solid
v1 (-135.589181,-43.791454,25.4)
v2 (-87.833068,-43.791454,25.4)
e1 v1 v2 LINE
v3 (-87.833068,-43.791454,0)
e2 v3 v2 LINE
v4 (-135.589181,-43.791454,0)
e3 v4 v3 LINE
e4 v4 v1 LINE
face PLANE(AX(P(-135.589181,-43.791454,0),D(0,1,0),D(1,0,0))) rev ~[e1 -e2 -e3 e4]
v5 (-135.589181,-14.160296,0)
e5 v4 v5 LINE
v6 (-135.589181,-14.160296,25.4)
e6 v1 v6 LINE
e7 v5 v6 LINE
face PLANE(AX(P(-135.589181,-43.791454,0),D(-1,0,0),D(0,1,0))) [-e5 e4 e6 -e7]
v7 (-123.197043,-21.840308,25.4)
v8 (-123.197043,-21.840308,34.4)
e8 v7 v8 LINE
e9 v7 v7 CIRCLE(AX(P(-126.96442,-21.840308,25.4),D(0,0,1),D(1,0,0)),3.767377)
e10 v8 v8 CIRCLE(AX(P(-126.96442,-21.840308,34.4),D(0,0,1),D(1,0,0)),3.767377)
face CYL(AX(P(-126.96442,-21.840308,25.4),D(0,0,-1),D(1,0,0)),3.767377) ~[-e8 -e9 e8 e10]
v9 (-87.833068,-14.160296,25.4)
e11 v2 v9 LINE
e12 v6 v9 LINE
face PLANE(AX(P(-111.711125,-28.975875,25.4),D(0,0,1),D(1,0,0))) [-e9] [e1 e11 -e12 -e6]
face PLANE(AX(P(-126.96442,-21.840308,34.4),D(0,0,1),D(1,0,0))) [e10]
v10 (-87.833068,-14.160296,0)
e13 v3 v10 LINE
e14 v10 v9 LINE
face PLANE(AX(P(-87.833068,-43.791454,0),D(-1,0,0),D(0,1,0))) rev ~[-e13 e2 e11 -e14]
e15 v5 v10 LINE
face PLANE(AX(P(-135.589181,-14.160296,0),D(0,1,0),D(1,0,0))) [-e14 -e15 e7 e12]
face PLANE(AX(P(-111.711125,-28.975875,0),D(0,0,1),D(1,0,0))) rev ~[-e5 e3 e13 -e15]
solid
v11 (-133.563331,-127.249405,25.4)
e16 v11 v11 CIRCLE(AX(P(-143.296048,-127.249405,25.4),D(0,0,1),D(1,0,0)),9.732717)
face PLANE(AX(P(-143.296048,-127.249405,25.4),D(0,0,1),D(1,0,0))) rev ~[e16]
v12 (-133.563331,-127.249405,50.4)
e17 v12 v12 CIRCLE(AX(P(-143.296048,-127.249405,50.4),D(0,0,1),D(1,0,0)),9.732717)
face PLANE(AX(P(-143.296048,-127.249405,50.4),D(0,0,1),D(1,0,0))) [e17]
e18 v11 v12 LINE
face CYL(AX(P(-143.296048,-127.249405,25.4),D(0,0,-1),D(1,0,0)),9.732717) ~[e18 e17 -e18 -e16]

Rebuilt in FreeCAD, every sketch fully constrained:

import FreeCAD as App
import Part
import Sketcher


def add_polygon(sketch, points):
    """Adds a closed chain of lines whose ends are joined by coincident constraints."""
    first, n = sketch.GeometryCount, len(points)
    for a, b in zip(points, points[1:] + points[:1]):
        sketch.addGeometry(Part.LineSegment(App.Vector(*a, 0), App.Vector(*b, 0)), False)
    for i in range(n):
        sketch.addConstraint(Sketcher.Constraint("Coincident", first + i, 2, first + (i + 1) % n, 1))

doc = App.newDocument("Part")
params = doc.addObject("Spreadsheet::Sheet", "Params")
for row, (alias, value) in enumerate([
    ("pad1_length", "25.4 mm"),
    ("pad2_length", "9 mm"),
    ("pad3_length", "25 mm"),
], start=1):
    params.set(f"A{row}", alias)
    params.set(f"B{row}", "=" + value)
    params.setAlias(f"B{row}", alias)

body = doc.addObject("PartDesign::Body", "Body")

sketch1 = doc.addObject("Sketcher::SketchObject", "Sketch")
body.addObject(sketch1)
sketch1.AttachmentSupport = (doc.XY_Plane, [""])
sketch1.MapMode = "FlatFace"
add_polygon(sketch1, [(-135.589181, -14.160296), (-135.589181, -43.791454), (-87.833068, -43.791454), (-87.833068, -14.160296)])
sketch1.addConstraint([
    Sketcher.Constraint("Vertical", 0),
    Sketcher.Constraint("Horizontal", 1),
    Sketcher.Constraint("Vertical", 2),
    Sketcher.Constraint("Horizontal", 3),
    Sketcher.Constraint("DistanceX", 1, 1, 1, 2, 47.756113),
    Sketcher.Constraint("DistanceY", 0, 2, 0, 1, 29.631158),
    Sketcher.Constraint("DistanceX", 0, 2, -1, 1, 135.589181),
    Sketcher.Constraint("DistanceY", 0, 2, -1, 1, 43.791454),
])
pad1 = doc.addObject("PartDesign::Pad", "Pad")
body.addObject(pad1)
pad1.Profile = sketch1
pad1.setExpression("Length", "Params.pad1_length")

sketch2 = doc.addObject("Sketcher::SketchObject", "Sketch001")
body.addObject(sketch2)
sketch2.AttachmentSupport = (doc.XY_Plane, [""])
sketch2.MapMode = "FlatFace"
sketch2.AttachmentOffset = App.Placement(App.Vector(0, 0, 25.4), App.Rotation())
sketch2.addGeometry(Part.Circle(App.Vector(-126.96442, -21.840308, 0), App.Vector(0, 0, 1), 3.767377), False)
sketch2.addConstraint([
    Sketcher.Constraint("Diameter", 0, 7.534754),
    Sketcher.Constraint("DistanceX", 0, 3, -1, 1, 126.96442),
    Sketcher.Constraint("DistanceY", 0, 3, -1, 1, 21.840308),
])
pad2 = doc.addObject("PartDesign::Pad", "Pad001")
body.addObject(pad2)
pad2.Profile = sketch2
pad2.setExpression("Length", "Params.pad2_length")
body2 = doc.addObject("PartDesign::Body", "Body001")

sketch3 = doc.addObject("Sketcher::SketchObject", "Sketch002")
body2.addObject(sketch3)
sketch3.AttachmentSupport = (doc.getObject("XY_Plane001"), [""])
sketch3.MapMode = "FlatFace"
sketch3.AttachmentOffset = App.Placement(App.Vector(0, 0, 25.4), App.Rotation())
sketch3.addGeometry(Part.Circle(App.Vector(-143.296048, -127.249405, 0), App.Vector(0, 0, 1), 9.732717), False)
sketch3.addConstraint([
    Sketcher.Constraint("Diameter", 0, 19.465434),
    Sketcher.Constraint("DistanceX", 0, 3, -1, 1, 143.296048),
    Sketcher.Constraint("DistanceY", 0, 3, -1, 1, 127.249405),
])
pad3 = doc.addObject("PartDesign::Pad", "Pad002")
body2.addObject(pad3)
pad3.Profile = sketch3
pad3.setExpression("Length", "Params.pad3_length")

doc.recompute()
